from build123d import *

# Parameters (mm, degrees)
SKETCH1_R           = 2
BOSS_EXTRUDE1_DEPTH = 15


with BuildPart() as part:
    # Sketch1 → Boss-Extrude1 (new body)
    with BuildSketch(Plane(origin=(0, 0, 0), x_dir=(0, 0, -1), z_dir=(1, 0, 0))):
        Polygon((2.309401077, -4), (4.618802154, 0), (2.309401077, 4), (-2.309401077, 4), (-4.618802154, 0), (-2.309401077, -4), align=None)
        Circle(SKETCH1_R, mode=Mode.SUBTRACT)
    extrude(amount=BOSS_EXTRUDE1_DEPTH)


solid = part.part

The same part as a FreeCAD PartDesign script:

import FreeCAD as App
import Part
import Sketcher

V = App.Vector
Q = App.Units.Quantity


def add_polygon(sketch, points):
    """Adds a closed chain of lines whose ends are joined by coincident constraints."""
    first, n = sketch.GeometryCount, len(points)
    for a, b in zip(points, points[1:] + points[:1]):
        sketch.addGeometry(Part.LineSegment(App.Vector(*a, 0), App.Vector(*b, 0)), False)
    for i in range(n):
        sketch.addConstraint(Sketcher.Constraint("Coincident", first + i, 2, first + (i + 1) % n, 1))

doc = App.newDocument("Part")
body = doc.addObject("PartDesign::Body", "Body")

sketch1 = body.newObject("Sketcher::SketchObject", "Sketch")
sketch1.AttachmentSupport = (doc.getObject("YZ_Plane"), [""])
sketch1.MapMode = "FlatFace"
add_polygon(sketch1, [(-4, -2.3), (0, -4.6), (4, -2.3), (4, 2.3), (0, 4.6), (-4, 2.3)])
sketch1.addGeometry(Part.Circle(V(0, 0, 0), V(0, 0, 1), 2), False)
sketch1.addConstraint([
    Sketcher.Constraint("Vertical", 2),
    Sketcher.Constraint("Vertical", 5),
    Sketcher.Constraint("Coincident", 6, 3, -1, 1),
    Sketcher.Constraint("Symmetric", 0, 2, 3, 2, -1, 1),
    Sketcher.Constraint("Symmetric", 1, 2, 4, 2, -1, 1),
    Sketcher.Constraint("PointOnObject", 0, 2, -2),
    Sketcher.Constraint("Parallel", 0, 3),
    Sketcher.Constraint("Horizontal", 2, 2, 4, 2),
    Sketcher.Constraint("Diameter", 6, 4.0),
    Sketcher.Constraint("Angle", 0, Q("-30 deg")),
    Sketcher.Constraint("DistanceX", -1, 1, 1, 2, 4.0),
    Sketcher.Constraint("DistanceY", 1, 2, -1, 1, 2.309401),
])
pad1 = body.newObject("PartDesign::Pad", "Pad")
pad1.Profile = sketch1
pad1.Length = 15

doc.recompute()
